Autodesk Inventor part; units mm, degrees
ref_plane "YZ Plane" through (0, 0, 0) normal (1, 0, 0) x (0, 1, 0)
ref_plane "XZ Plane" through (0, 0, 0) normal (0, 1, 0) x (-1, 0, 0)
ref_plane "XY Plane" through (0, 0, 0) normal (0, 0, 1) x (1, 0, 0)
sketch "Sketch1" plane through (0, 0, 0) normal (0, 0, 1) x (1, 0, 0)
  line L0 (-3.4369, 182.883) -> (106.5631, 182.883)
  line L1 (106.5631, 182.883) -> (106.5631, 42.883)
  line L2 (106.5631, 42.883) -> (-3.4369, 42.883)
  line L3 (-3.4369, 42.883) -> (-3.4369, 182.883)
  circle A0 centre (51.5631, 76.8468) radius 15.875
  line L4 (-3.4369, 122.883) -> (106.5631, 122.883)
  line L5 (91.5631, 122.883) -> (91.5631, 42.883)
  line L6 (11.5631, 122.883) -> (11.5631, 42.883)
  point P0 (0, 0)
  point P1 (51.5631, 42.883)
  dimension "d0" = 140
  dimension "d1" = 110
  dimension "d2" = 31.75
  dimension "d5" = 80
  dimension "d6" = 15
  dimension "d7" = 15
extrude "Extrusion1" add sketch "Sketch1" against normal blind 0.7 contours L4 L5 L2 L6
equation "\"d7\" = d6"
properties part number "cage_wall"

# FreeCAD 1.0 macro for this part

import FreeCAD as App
import Part
import Sketcher

V = App.Vector

doc = App.newDocument("Part")
body = doc.addObject("PartDesign::Body", "Body")

# Sketch on XY plane
sketch1 = body.newObject("Sketcher::SketchObject", "Sketch")
sketch1.AttachmentSupport = (doc.getObject("XY_Plane"), [""])
sketch1.MapMode = "FlatFace"
sketch1.addGeometry([
    Part.LineSegment(V(92, 123, 0), V(12, 123, 0)),  # 0
    Part.LineSegment(V(12, 123, 0), V(12, 43, 0)),  # 1
    Part.LineSegment(V(12, 43, 0), V(92, 43, 0)),  # 2
    Part.LineSegment(V(92, 43, 0), V(92, 123, 0)),  # 3
    Part.Circle(V(52, 77, 0), V(0, 0, 1), 16),  # 4
], False)
sketch1.addConstraint([
    Sketcher.Constraint("Coincident", 0, 2, 1, 1),
    Sketcher.Constraint("Coincident", 1, 2, 2, 1),
    Sketcher.Constraint("Coincident", 2, 2, 3, 1),
    Sketcher.Constraint("Coincident", 3, 2, 0, 1),
    Sketcher.Constraint("Horizontal", 0),
    Sketcher.Constraint("Vertical", 1),
    Sketcher.Constraint("Horizontal", 2),
    Sketcher.Constraint("Vertical", 3),
    Sketcher.Constraint("Equal", 2, 1),
    Sketcher.Constraint("Diameter", 4, 31.75),
    Sketcher.Constraint("DistanceX", 0, 2, 0, 1, 80.0),
    Sketcher.Constraint("DistanceX", 0, 2, 4, 3, 40.0),
    Sketcher.Constraint("DistanceX", -1, 1, 4, 3, 51.563),
    Sketcher.Constraint("DistanceY", -1, 1, 0, 2, 122.883),
    Sketcher.Constraint("DistanceY", -1, 1, 4, 3, 76.8468),
])
pad1 = body.newObject("PartDesign::Pad", "Pad")
pad1.Profile = sketch1
pad1.Length = 0.7
pad1.Reversed = True

doc.recompute()
